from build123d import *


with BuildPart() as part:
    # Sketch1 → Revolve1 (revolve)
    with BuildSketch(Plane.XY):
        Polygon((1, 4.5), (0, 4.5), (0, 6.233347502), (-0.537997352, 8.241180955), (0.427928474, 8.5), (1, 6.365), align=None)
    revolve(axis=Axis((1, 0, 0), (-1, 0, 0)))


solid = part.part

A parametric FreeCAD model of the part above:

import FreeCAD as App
import Part
import Sketcher
from FreeCAD import Vector
Q = App.Units.Quantity

doc = App.newDocument("Part")
body = doc.addObject("PartDesign::Body", "Body")

# Sketch on XY plane
sketch1 = body.newObject("Sketcher::SketchObject", "Sketch")
sketch1.AttachmentSupport = (doc.getObject("XY_Plane"), [""])
sketch1.MapMode = "FlatFace"
sketch1.addGeometry(Part.LineSegment(Vector(0, 4.5, 0), Vector(1, 4.5, 0)), False)
sketch1.addGeometry(Part.LineSegment(Vector(1, 4.5, 0), Vector(1, 6.4, 0)), False)
sketch1.addGeometry(Part.LineSegment(Vector(1, 6.4, 0), Vector(0.4, 8.5, 0)), False)
sketch1.addGeometry(Part.LineSegment(Vector(0.4, 8.5, 0), Vector(-0.5, 8.2, 0)), False)
sketch1.addGeometry(Part.LineSegment(Vector(-0.5, 8.2, 0), Vector(0, 6.2, 0)), False)
sketch1.addGeometry(Part.LineSegment(Vector(0, 6.2, 0), Vector(0, 4.5, 0)), False)
sketch1.addConstraint(Sketcher.Constraint("Coincident", 0, 2, 1, 1))
sketch1.addConstraint(Sketcher.Constraint("Coincident", 1, 2, 2, 1))
sketch1.addConstraint(Sketcher.Constraint("Coincident", 2, 2, 3, 1))
sketch1.addConstraint(Sketcher.Constraint("Coincident", 3, 2, 4, 1))
sketch1.addConstraint(Sketcher.Constraint("Coincident", 4, 2, 5, 1))
sketch1.addConstraint(Sketcher.Constraint("Coincident", 5, 2, 0, 1))
sketch1.addConstraint(Sketcher.Constraint("Horizontal", 0))
sketch1.addConstraint(Sketcher.Constraint("Vertical", 1))
sketch1.addConstraint(Sketcher.Constraint("Vertical", 5))
sketch1.addConstraint(Sketcher.Constraint("PointOnObject", 4, 2, -2))
sketch1.addConstraint(Sketcher.Constraint("Perpendicular", 2, 3))
sketch1.addConstraint(Sketcher.Constraint("Perpendicular", 3, 4))
sketch1.addConstraint(Sketcher.Constraint("DistanceX", 0, 1, 0, 2, Q("1 mm")))
sketch1.addConstraint(Sketcher.Constraint("Angle", 2, Q("105 deg")))
sketch1.addConstraint(Sketcher.Constraint("Distance", 3, Q("1 mm")))
sketch1.addConstraint(Sketcher.Constraint("DistanceY", 0, 2, 2, 2, Q("4 mm")))
sketch1.addConstraint(Sketcher.Constraint("DistanceY", -1, 1, 0, 2, Q("4.5 mm")))
sketch1.addConstraint(Sketcher.Constraint("DistanceY", 1, 1, 1, 2, Q("1.865 mm")))
revolution = body.newObject("PartDesign::Revolution", "Revolution")
revolution.Profile = sketch1
revolution.ReferenceAxis = (sketch1, ["H_Axis"])
revolution.Angle = 360

doc.recompute()
